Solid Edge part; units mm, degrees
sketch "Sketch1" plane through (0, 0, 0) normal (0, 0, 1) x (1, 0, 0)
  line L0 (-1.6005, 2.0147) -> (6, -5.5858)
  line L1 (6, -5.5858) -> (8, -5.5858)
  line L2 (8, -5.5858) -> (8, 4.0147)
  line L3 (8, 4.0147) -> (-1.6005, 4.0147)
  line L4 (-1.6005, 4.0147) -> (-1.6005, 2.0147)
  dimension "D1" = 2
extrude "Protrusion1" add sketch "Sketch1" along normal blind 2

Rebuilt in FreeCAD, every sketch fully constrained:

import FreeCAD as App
import Part
import Sketcher

V = App.Vector

doc = App.newDocument("Part")
body = doc.addObject("PartDesign::Body", "Body")

# Sketch on XY plane
sketch1 = doc.addObject("Sketcher::SketchObject", "Sketch")
body.addObject(sketch1)
sketch1.AttachmentSupport = (doc.XY_Plane, [""])
sketch1.MapMode = "FlatFace"
sketch1.addGeometry(Part.LineSegment(V(-1.6005, 4.0147, 0), V(-1.6005, 2.0147, 0)), False)
sketch1.addGeometry(Part.LineSegment(V(-1.6005, 2.0147, 0), V(6, -5.5858, 0)), False)
sketch1.addGeometry(Part.LineSegment(V(6, -5.5858, 0), V(8, -5.5858, 0)), False)
sketch1.addGeometry(Part.LineSegment(V(8, -5.5858, 0), V(8, 4.0147, 0)), False)
sketch1.addGeometry(Part.LineSegment(V(8, 4.0147, 0), V(-1.6005, 4.0147, 0)), False)
sketch1.addConstraint(Sketcher.Constraint("Coincident", 0, 2, 1, 1))
sketch1.addConstraint(Sketcher.Constraint("Coincident", 1, 2, 2, 1))
sketch1.addConstraint(Sketcher.Constraint("Coincident", 2, 2, 3, 1))
sketch1.addConstraint(Sketcher.Constraint("Coincident", 3, 2, 4, 1))
sketch1.addConstraint(Sketcher.Constraint("Coincident", 4, 2, 0, 1))
sketch1.addConstraint(Sketcher.Constraint("Vertical", 0))
sketch1.addConstraint(Sketcher.Constraint("Horizontal", 2))
sketch1.addConstraint(Sketcher.Constraint("Vertical", 3))
sketch1.addConstraint(Sketcher.Constraint("Horizontal", 4))
sketch1.addConstraint(Sketcher.Constraint("Equal", 2, 0))
sketch1.addConstraint(Sketcher.Constraint("Equal", 4, 3))
sketch1.addConstraint(Sketcher.Constraint("DistanceX", 2, 1, 2, 2, 2.0))
sketch1.addConstraint(Sketcher.Constraint("DistanceX", -1, 1, 1, 2, 6.0))
sketch1.addConstraint(Sketcher.Constraint("DistanceX", 4, 2, 4, 1, 9.6005))
sketch1.addConstraint(Sketcher.Constraint("DistanceY", -1, 1, 0, 2, 2.0147))
pad1 = doc.addObject("PartDesign::Pad", "Pad")
body.addObject(pad1)
pad1.Profile = sketch1
pad1.Length = 2

doc.recompute()
